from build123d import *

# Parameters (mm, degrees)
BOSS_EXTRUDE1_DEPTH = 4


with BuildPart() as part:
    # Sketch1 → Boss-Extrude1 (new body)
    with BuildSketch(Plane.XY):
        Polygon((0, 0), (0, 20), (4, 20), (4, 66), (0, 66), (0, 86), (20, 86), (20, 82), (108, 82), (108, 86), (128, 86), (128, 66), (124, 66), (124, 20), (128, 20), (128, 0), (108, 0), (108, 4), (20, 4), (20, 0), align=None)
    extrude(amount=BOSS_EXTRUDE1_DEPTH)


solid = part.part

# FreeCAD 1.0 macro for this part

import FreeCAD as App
import Part
import Sketcher

V = App.Vector
Q = App.Units.Quantity


def add_polygon(sketch, points):
    """Adds a closed chain of lines whose ends are joined by coincident constraints."""
    first, n = sketch.GeometryCount, len(points)
    for a, b in zip(points, points[1:] + points[:1]):
        sketch.addGeometry(Part.LineSegment(App.Vector(*a, 0), App.Vector(*b, 0)), False)
    for i in range(n):
        sketch.addConstraint(Sketcher.Constraint("Coincident", first + i, 2, first + (i + 1) % n, 1))

doc = App.newDocument("Part")
body = doc.addObject("PartDesign::Body", "Body")

sketch1 = doc.addObject("Sketcher::SketchObject", "Sketch")
body.addObject(sketch1)
sketch1.AttachmentSupport = (doc.XY_Plane, [""])
sketch1.MapMode = "FlatFace"
add_polygon(sketch1, [(0, 20), (0, 0), (20, 0), (20, 4), (108, 4), (108, 0), (128, 0), (128, 20), (124, 20), (124, 66), (128, 66), (128, 86), (108, 86), (108, 82), (20, 82), (20, 86), (0, 86), (0, 66), (4, 66), (4, 20)])
sketch1.addConstraint([
    Sketcher.Constraint("Vertical", 0),
    Sketcher.Constraint("Horizontal", 1),
    Sketcher.Constraint("Vertical", 2),
    Sketcher.Constraint("Horizontal", 3),
    Sketcher.Constraint("Vertical", 4),
    Sketcher.Constraint("Horizontal", 5),
    Sketcher.Constraint("Vertical", 6),
    Sketcher.Constraint("Horizontal", 7),
    Sketcher.Constraint("Vertical", 8),
    Sketcher.Constraint("Horizontal", 9),
    Sketcher.Constraint("Vertical", 10),
    Sketcher.Constraint("Horizontal", 11),
    Sketcher.Constraint("Vertical", 12),
    Sketcher.Constraint("Horizontal", 13),
    Sketcher.Constraint("Vertical", 14),
    Sketcher.Constraint("Horizontal", 15),
    Sketcher.Constraint("Vertical", 16),
    Sketcher.Constraint("Horizontal", 17),
    Sketcher.Constraint("Vertical", 18),
    Sketcher.Constraint("Horizontal", 19),
    Sketcher.Constraint("Coincident", 0, 2, -1, 1),
    Sketcher.Constraint("PointOnObject", 4, 2, -1),
    Sketcher.Constraint("PointOnObject", 15, 2, -2),
    Sketcher.Constraint("Horizontal", 11, 2, 14, 2),
    Sketcher.Constraint("Horizontal", 9, 2, 16, 2),
    Sketcher.Constraint("Horizontal", 7, 2, 18, 2),
    Sketcher.Constraint("Vertical", 6, 2, 9, 2),
    Sketcher.Constraint("Vertical", 4, 2, 11, 2),
    Sketcher.Constraint("Vertical", 2, 2, 13, 2),
    Sketcher.Constraint("Equal", 1, 5),
    Sketcher.Constraint("Equal", 9, 17),
    Sketcher.Constraint("Equal", 15, 0),
    Sketcher.Constraint("Equal", 19, 2),
    Sketcher.Constraint("Equal", 6, 10),
    Sketcher.Constraint("Equal", 4, 12),
    Sketcher.Constraint("DistanceX", 1, 1, 1, 2, Q("20 mm")),
    Sketcher.Constraint("DistanceX", 3, 1, 3, 2, Q("88 mm")),
    Sketcher.Constraint("DistanceX", 7, 2, 7, 1, Q("4 mm")),
    Sketcher.Constraint("DistanceY", 8, 1, 8, 2, Q("46 mm")),
])
pad1 = doc.addObject("PartDesign::Pad", "Pad")
body.addObject(pad1)
pad1.Profile = sketch1
pad1.Length = 4

doc.recompute()
